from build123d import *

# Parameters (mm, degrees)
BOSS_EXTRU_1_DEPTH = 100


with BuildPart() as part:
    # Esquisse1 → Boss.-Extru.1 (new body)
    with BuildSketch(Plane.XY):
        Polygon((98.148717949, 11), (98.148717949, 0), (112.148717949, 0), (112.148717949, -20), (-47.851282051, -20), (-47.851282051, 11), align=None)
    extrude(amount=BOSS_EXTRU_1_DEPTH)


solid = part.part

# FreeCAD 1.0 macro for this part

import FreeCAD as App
import Part
import Sketcher
Q = App.Units.Quantity


def add_polygon(sketch, points):
    """Adds a closed chain of lines whose ends are joined by coincident constraints."""
    first, n = sketch.GeometryCount, len(points)
    for a, b in zip(points, points[1:] + points[:1]):
        sketch.addGeometry(Part.LineSegment(App.Vector(*a, 0), App.Vector(*b, 0)), False)
    for i in range(n):
        sketch.addConstraint(Sketcher.Constraint("Coincident", first + i, 2, first + (i + 1) % n, 1))

doc = App.newDocument("Part")
body = doc.addObject("PartDesign::Body", "Body")

# Sketch on XY plane
sketch1 = body.newObject("Sketcher::SketchObject", "Sketch")
sketch1.AttachmentSupport = (doc.getObject("XY_Plane"), [""])
sketch1.MapMode = "FlatFace"
add_polygon(sketch1, [(98.148718, 0), (98.148718, 11), (-47.851282, 11), (-47.851282, -20), (112.148718, -20), (112.148718, 0)])  # lines 0-5
sketch1.addConstraint(Sketcher.Constraint("Vertical", 0))
sketch1.addConstraint(Sketcher.Constraint("Horizontal", 1))
sketch1.addConstraint(Sketcher.Constraint("Vertical", 2))
sketch1.addConstraint(Sketcher.Constraint("Horizontal", 3))
sketch1.addConstraint(Sketcher.Constraint("Vertical", 4))
sketch1.addConstraint(Sketcher.Constraint("Horizontal", 5))
sketch1.addConstraint(Sketcher.Constraint("PointOnObject", 4, 2, -1))
sketch1.addConstraint(Sketcher.Constraint("DistanceX", 1, 2, 1, 1, Q("146 mm")))
sketch1.addConstraint(Sketcher.Constraint("DistanceX", 3, 1, 3, 2, Q("160 mm")))
sketch1.addConstraint(Sketcher.Constraint("DistanceY", 0, 1, 0, 2, Q("11 mm")))
sketch1.addConstraint(Sketcher.Constraint("DistanceY", 2, 2, 2, 1, Q("31 mm")))
sketch1.addConstraint(Sketcher.Constraint("DistanceX", -1, 1, 0, 2, Q("98.148718 mm")))
pad1 = body.newObject("PartDesign::Pad", "Pad")
pad1.Profile = sketch1
pad1.Length = 100

doc.recompute()
